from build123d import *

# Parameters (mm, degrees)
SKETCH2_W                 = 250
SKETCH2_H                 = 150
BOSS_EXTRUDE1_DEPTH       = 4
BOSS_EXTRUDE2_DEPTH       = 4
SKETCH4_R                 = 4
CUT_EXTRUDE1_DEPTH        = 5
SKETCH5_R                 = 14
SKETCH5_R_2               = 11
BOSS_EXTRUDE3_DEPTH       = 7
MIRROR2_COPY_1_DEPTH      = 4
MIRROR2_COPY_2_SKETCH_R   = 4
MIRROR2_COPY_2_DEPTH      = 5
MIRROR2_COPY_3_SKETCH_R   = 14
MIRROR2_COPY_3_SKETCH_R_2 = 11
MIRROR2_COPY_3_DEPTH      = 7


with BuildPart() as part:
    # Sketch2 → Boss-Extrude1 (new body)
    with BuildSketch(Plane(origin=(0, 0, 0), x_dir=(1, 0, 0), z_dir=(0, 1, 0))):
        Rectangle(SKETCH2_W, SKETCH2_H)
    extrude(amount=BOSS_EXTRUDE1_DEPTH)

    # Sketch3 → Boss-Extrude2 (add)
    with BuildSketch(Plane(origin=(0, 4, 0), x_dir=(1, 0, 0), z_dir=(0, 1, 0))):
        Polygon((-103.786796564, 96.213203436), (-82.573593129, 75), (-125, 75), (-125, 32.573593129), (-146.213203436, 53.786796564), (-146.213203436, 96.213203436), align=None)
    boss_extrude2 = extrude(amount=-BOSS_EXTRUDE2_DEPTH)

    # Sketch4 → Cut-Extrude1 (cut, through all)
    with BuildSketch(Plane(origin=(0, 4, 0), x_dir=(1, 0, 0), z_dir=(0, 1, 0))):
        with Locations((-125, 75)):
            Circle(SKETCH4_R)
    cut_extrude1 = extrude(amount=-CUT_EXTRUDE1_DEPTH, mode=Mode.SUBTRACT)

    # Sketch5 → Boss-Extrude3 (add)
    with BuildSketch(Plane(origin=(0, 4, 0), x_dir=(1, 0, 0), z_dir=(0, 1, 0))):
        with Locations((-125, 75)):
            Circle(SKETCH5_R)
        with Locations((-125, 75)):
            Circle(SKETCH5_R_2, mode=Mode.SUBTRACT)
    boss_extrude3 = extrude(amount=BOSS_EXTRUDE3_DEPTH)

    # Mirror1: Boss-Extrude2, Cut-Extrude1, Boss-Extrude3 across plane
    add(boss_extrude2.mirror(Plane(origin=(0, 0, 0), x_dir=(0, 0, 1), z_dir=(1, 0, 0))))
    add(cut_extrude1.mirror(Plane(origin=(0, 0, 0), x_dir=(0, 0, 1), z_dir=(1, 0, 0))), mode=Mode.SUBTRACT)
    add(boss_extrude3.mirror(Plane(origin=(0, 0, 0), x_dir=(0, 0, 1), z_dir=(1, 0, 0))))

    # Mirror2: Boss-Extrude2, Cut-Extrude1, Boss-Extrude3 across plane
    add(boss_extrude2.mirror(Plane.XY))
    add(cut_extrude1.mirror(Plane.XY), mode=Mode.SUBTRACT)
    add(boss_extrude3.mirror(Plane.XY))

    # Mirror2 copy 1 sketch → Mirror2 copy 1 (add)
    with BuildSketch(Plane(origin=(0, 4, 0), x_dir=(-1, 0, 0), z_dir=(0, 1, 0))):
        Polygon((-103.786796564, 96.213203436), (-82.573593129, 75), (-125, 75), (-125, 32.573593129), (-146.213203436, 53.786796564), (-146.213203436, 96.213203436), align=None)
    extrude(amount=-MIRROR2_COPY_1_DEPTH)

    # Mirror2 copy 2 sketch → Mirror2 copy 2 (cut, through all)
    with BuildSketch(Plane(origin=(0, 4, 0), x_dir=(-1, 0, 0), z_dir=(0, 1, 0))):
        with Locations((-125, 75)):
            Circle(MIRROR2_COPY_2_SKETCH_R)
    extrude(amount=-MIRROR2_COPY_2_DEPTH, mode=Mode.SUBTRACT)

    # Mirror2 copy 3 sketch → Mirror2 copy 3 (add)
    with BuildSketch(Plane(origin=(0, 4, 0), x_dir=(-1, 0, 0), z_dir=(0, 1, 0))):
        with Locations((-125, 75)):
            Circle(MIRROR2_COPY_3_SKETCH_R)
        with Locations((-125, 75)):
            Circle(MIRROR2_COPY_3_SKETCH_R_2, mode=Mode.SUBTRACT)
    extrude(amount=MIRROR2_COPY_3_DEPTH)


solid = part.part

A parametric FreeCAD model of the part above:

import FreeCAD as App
import Part
import Sketcher
Q = App.Units.Quantity

doc = App.newDocument("Part")
body = doc.addObject("PartDesign::Body", "Body")

sketch1 = body.newObject("Sketcher::SketchObject", "Sketch")
sketch1.AttachmentSupport = (doc.getObject("XZ_Plane"), [""])
sketch1.MapMode = "FlatFace"
sketch1.addGeometry([
    Part.LineSegment(App.Vector(-125, -75, 0), App.Vector(-125, 75, 0)),
    Part.LineSegment(App.Vector(-125, 75, 0), App.Vector(125, 75, 0)),
    Part.LineSegment(App.Vector(125, 75, 0), App.Vector(125, -75, 0)),
    Part.LineSegment(App.Vector(125, -75, 0), App.Vector(-125, -75, 0)),
], False)
sketch1.addConstraint([
    Sketcher.Constraint("Coincident", 0, 2, 1, 1),
    Sketcher.Constraint("Coincident", 1, 2, 2, 1),
    Sketcher.Constraint("Coincident", 2, 2, 3, 1),
    Sketcher.Constraint("Coincident", 3, 2, 0, 1),
    Sketcher.Constraint("Vertical", 0),
    Sketcher.Constraint("Horizontal", 1),
    Sketcher.Constraint("Vertical", 2),
    Sketcher.Constraint("Horizontal", 3),
    Sketcher.Constraint("Symmetric", 0, 2, 2, 2, -1, 1),
    Sketcher.Constraint("DistanceX", 1, 1, 1, 2, 250.0),
    Sketcher.Constraint("DistanceY", 0, 1, 0, 2, 150.0),
])
pad1 = body.newObject("PartDesign::Pad", "Pad")
pad1.Profile = sketch1
pad1.Length = 4
pad1.Reversed = True

sketch2 = body.newObject("Sketcher::SketchObject", "Sketch001")
sketch2.AttachmentSupport = (doc.getObject("XZ_Plane"), [""])
sketch2.MapMode = "FlatFace"
sketch2.AttachmentOffset = App.Placement(App.Vector(0, 0, -4), App.Rotation())
sketch2.addGeometry([
    Part.LineSegment(App.Vector(-82.573593, -75, 0), App.Vector(-103.786797, -96.213203, 0)),
    Part.LineSegment(App.Vector(-103.786797, -96.213203, 0), App.Vector(-146.213203, -96.213203, 0)),
    Part.LineSegment(App.Vector(-146.213203, -96.213203, 0), App.Vector(-146.213203, -53.786797, 0)),
    Part.LineSegment(App.Vector(-146.213203, -53.786797, 0), App.Vector(-125, -32.573593, 0)),
    Part.LineSegment(App.Vector(-125, -32.573593, 0), App.Vector(-125, -75, 0)),
    Part.LineSegment(App.Vector(-125, -75, 0), App.Vector(-82.573593, -75, 0)),
], False)
sketch2.addConstraint([
    Sketcher.Constraint("Coincident", 0, 2, 1, 1),
    Sketcher.Constraint("Coincident", 1, 2, 2, 1),
    Sketcher.Constraint("Coincident", 2, 2, 3, 1),
    Sketcher.Constraint("Coincident", 3, 2, 4, 1),
    Sketcher.Constraint("Coincident", 4, 2, 5, 1),
    Sketcher.Constraint("Coincident", 5, 2, 0, 1),
    Sketcher.Constraint("Horizontal", 1),
    Sketcher.Constraint("Vertical", 2),
    Sketcher.Constraint("Vertical", 4),
    Sketcher.Constraint("Horizontal", 5),
    Sketcher.Constraint("Parallel", 0, 3),
    Sketcher.Constraint("Equal", 1, 5),
    Sketcher.Constraint("Equal", 5, 2),
    Sketcher.Constraint("Angle", 0, Q("-135 deg")),
    Sketcher.Constraint("Distance", 0, 30.0),
    Sketcher.Constraint("DistanceX", 3, 2, -1, 1, 125.0),
    Sketcher.Constraint("DistanceY", 4, 2, -1, 1, 75.0),
    Sketcher.Constraint("DistanceX", 1, 2, 1, 1, 42.426407),
])
pad2 = body.newObject("PartDesign::Pad", "Pad001")
pad2.Profile = sketch2
pad2.Length = 4

sketch3 = body.newObject("Sketcher::SketchObject", "Sketch002")
sketch3.AttachmentSupport = (doc.getObject("XZ_Plane"), [""])
sketch3.MapMode = "FlatFace"
sketch3.AttachmentOffset = App.Placement(App.Vector(0, 0, -4), App.Rotation())
sketch3.addGeometry(Part.Circle(App.Vector(-125, -75, 0), App.Vector(0, 0, 1), 4), False)
sketch3.addConstraint([
    Sketcher.Constraint("Diameter", 0, 8.0),
    Sketcher.Constraint("DistanceX", 0, 3, -1, 1, 125.0),
    Sketcher.Constraint("DistanceY", 0, 3, -1, 1, 75.0),
])
pocket1 = body.newObject("PartDesign::Pocket", "Pocket")
pocket1.Profile = sketch3
pocket1.Type = "ThroughAll"
pocket1.Reversed = True

sketch4 = body.newObject("Sketcher::SketchObject", "Sketch003")
sketch4.AttachmentSupport = (doc.getObject("XZ_Plane"), [""])
sketch4.MapMode = "FlatFace"
sketch4.AttachmentOffset = App.Placement(App.Vector(0, 0, -4), App.Rotation())
sketch4.addGeometry([
    Part.Circle(App.Vector(-125, -75, 0), App.Vector(0, 0, 1), 14),
    Part.Circle(App.Vector(-125, -75, 0), App.Vector(0, 0, 1), 11),
], False)
sketch4.addConstraint([
    Sketcher.Constraint("Coincident", 1, 3, 0, 3),
    Sketcher.Constraint("Diameter", 0, 28.0),
    Sketcher.Constraint("Diameter", 1, 22.0),
    Sketcher.Constraint("DistanceX", 0, 3, -1, 1, 125.0),
    Sketcher.Constraint("DistanceY", 0, 3, -1, 1, 75.0),
])
pad3 = body.newObject("PartDesign::Pad", "Pad002")
pad3.Profile = sketch4
pad3.Length = 7
pad3.Reversed = True
doc.recompute()

mirrored = body.newObject("PartDesign::Mirrored", "Mirrored")
mirrored.Originals = [pad2, pocket1, pad3]
mirrored.MirrorPlane = (doc.getObject("YZ_Plane"), [""])
body.Tip = mirrored
doc.recompute()

mirrored2 = body.newObject("PartDesign::Mirrored", "Mirrored001")
mirrored2.Originals = [pad2, pocket1, pad3]
mirrored2.MirrorPlane = (doc.getObject("XY_Plane"), [""])
body.Tip = mirrored2

sketch5 = body.newObject("Sketcher::SketchObject", "Sketch004")
sketch5.AttachmentSupport = (doc.getObject("XZ_Plane"), [""])
sketch5.MapMode = "FlatFace"
sketch5.AttachmentOffset = App.Placement(App.Vector(0, 0, -4), App.Rotation())
sketch5.addGeometry([
    Part.LineSegment(App.Vector(82.573593, 75, 0), App.Vector(103.786797, 96.213203, 0)),
    Part.LineSegment(App.Vector(103.786797, 96.213203, 0), App.Vector(146.213203, 96.213203, 0)),
    Part.LineSegment(App.Vector(146.213203, 96.213203, 0), App.Vector(146.213203, 53.786797, 0)),
    Part.LineSegment(App.Vector(146.213203, 53.786797, 0), App.Vector(125, 32.573593, 0)),
    Part.LineSegment(App.Vector(125, 32.573593, 0), App.Vector(125, 75, 0)),
    Part.LineSegment(App.Vector(125, 75, 0), App.Vector(82.573593, 75, 0)),
], False)
sketch5.addConstraint([
    Sketcher.Constraint("Coincident", 0, 2, 1, 1),
    Sketcher.Constraint("Coincident", 1, 2, 2, 1),
    Sketcher.Constraint("Coincident", 2, 2, 3, 1),
    Sketcher.Constraint("Coincident", 3, 2, 4, 1),
    Sketcher.Constraint("Coincident", 4, 2, 5, 1),
    Sketcher.Constraint("Coincident", 5, 2, 0, 1),
    Sketcher.Constraint("Horizontal", 1),
    Sketcher.Constraint("Vertical", 2),
    Sketcher.Constraint("Vertical", 4),
    Sketcher.Constraint("Horizontal", 5),
    Sketcher.Constraint("Parallel", 0, 3),
    Sketcher.Constraint("Equal", 1, 5),
    Sketcher.Constraint("Equal", 5, 2),
    Sketcher.Constraint("Angle", 0, Q("45 deg")),
    Sketcher.Constraint("Distance", 0, 30.0),
    Sketcher.Constraint("DistanceX", -1, 1, 3, 2, 125.0),
    Sketcher.Constraint("DistanceY", -1, 1, 4, 2, 75.0),
    Sketcher.Constraint("DistanceX", 1, 1, 1, 2, 42.426407),
])
pad4 = body.newObject("PartDesign::Pad", "Pad003")
pad4.Profile = sketch5
pad4.Length = 4

sketch6 = body.newObject("Sketcher::SketchObject", "Sketch005")
sketch6.AttachmentSupport = (doc.getObject("XZ_Plane"), [""])
sketch6.MapMode = "FlatFace"
sketch6.AttachmentOffset = App.Placement(App.Vector(0, 0, -4), App.Rotation())
sketch6.addGeometry(Part.Circle(App.Vector(125, 75, 0), App.Vector(0, 0, 1), 4), False)
sketch6.addConstraint([
    Sketcher.Constraint("Diameter", 0, 8.0),
    Sketcher.Constraint("DistanceX", -1, 1, 0, 3, 125.0),
    Sketcher.Constraint("DistanceY", -1, 1, 0, 3, 75.0),
])
pocket2 = body.newObject("PartDesign::Pocket", "Pocket001")
pocket2.Profile = sketch6
pocket2.Type = "ThroughAll"
pocket2.Reversed = True

sketch7 = body.newObject("Sketcher::SketchObject", "Sketch006")
sketch7.AttachmentSupport = (doc.getObject("XZ_Plane"), [""])
sketch7.MapMode = "FlatFace"
sketch7.AttachmentOffset = App.Placement(App.Vector(0, 0, -4), App.Rotation())
sketch7.addGeometry([
    Part.Circle(App.Vector(125, 75, 0), App.Vector(0, 0, 1), 14),
    Part.Circle(App.Vector(125, 75, 0), App.Vector(0, 0, 1), 11),
], False)
sketch7.addConstraint([
    Sketcher.Constraint("Coincident", 1, 3, 0, 3),
    Sketcher.Constraint("Diameter", 0, 28.0),
    Sketcher.Constraint("Diameter", 1, 22.0),
    Sketcher.Constraint("DistanceX", -1, 1, 0, 3, 125.0),
    Sketcher.Constraint("DistanceY", -1, 1, 0, 3, 75.0),
])
pad5 = body.newObject("PartDesign::Pad", "Pad004")
pad5.Profile = sketch7
pad5.Length = 7
pad5.Reversed = True

doc.recompute()
